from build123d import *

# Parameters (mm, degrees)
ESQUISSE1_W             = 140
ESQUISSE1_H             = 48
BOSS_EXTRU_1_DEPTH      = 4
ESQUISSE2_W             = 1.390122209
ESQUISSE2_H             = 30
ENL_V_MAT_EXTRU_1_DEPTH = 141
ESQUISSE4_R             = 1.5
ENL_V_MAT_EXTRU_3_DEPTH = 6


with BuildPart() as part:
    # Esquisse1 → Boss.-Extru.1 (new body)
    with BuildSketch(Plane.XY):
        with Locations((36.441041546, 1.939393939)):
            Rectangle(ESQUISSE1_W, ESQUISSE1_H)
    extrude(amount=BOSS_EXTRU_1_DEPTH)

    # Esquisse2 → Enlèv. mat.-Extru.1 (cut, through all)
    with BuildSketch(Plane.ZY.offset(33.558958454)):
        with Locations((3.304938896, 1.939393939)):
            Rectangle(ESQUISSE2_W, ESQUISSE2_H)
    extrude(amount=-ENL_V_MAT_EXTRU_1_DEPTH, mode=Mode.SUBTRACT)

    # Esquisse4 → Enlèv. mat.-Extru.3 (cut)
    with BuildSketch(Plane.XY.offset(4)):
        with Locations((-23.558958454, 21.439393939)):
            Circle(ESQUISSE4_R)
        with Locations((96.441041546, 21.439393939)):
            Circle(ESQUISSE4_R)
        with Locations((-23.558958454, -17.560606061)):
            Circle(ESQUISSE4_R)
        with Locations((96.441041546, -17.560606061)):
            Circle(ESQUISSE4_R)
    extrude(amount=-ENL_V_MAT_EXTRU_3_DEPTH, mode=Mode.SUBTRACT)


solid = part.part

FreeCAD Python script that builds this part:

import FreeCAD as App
import Part
import Sketcher
Q = App.Units.Quantity


def add_polygon(sketch, points):
    """Adds a closed chain of lines whose ends are joined by coincident constraints."""
    first, n = sketch.GeometryCount, len(points)
    for a, b in zip(points, points[1:] + points[:1]):
        sketch.addGeometry(Part.LineSegment(App.Vector(*a, 0), App.Vector(*b, 0)), False)
    for i in range(n):
        sketch.addConstraint(Sketcher.Constraint("Coincident", first + i, 2, first + (i + 1) % n, 1))

doc = App.newDocument("Part")
body = doc.addObject("PartDesign::Body", "Body")

# Sketch on XY plane
sketch1 = body.newObject("Sketcher::SketchObject", "Sketch")
sketch1.AttachmentSupport = (doc.getObject("XY_Plane"), [""])
sketch1.MapMode = "FlatFace"
add_polygon(sketch1, [(-33.558958, 25.939394), (-33.558958, -22.060606), (106.441042, -22.060606), (106.441042, 25.939394)])  # lines 0-3
sketch1.addConstraint(Sketcher.Constraint("Vertical", 0))
sketch1.addConstraint(Sketcher.Constraint("Horizontal", 1))
sketch1.addConstraint(Sketcher.Constraint("Vertical", 2))
sketch1.addConstraint(Sketcher.Constraint("Horizontal", 3))
sketch1.addConstraint(Sketcher.Constraint("DistanceX", 1, 1, 1, 2, Q("140 mm")))
sketch1.addConstraint(Sketcher.Constraint("DistanceY", 0, 2, 0, 1, Q("48 mm")))
sketch1.addConstraint(Sketcher.Constraint("DistanceX", 0, 2, -1, 1, Q("33.558958 mm")))
sketch1.addConstraint(Sketcher.Constraint("DistanceY", 0, 2, -1, 1, Q("22.060606 mm")))
pad1 = body.newObject("PartDesign::Pad", "Pad")
pad1.Profile = sketch1
pad1.Length = 4

# Sketch on YZ plane
sketch2 = body.newObject("Sketcher::SketchObject", "Sketch001")
sketch2.AttachmentSupport = (doc.getObject("YZ_Plane"), [""])
sketch2.MapMode = "FlatFace"
sketch2.AttachmentOffset = App.Placement(App.Vector(0, 0, -33.558958), App.Rotation())
add_polygon(sketch2, [(16.939394, 2.609878), (-13.060606, 2.609878), (-13.060606, 4), (16.939394, 4)])  # lines 0-3
sketch2.addConstraint(Sketcher.Constraint("Horizontal", 0))
sketch2.addConstraint(Sketcher.Constraint("Vertical", 1))
sketch2.addConstraint(Sketcher.Constraint("Horizontal", 2))
sketch2.addConstraint(Sketcher.Constraint("Vertical", 3))
sketch2.addConstraint(Sketcher.Constraint("DistanceX", 0, 2, 0, 1, Q("30 mm")))
sketch2.addConstraint(Sketcher.Constraint("DistanceY", -1, 1, 1, 2, Q("4 mm")))
sketch2.addConstraint(Sketcher.Constraint("DistanceY", 1, 1, 1, 2, Q("1.390122 mm")))
sketch2.addConstraint(Sketcher.Constraint("DistanceX", 0, 2, -1, 1, Q("13.060606 mm")))
pocket1 = body.newObject("PartDesign::Pocket", "Pocket")
pocket1.Profile = sketch2
pocket1.Type = "ThroughAll"
pocket1.Reversed = True

# Sketch on XY plane
sketch3 = body.newObject("Sketcher::SketchObject", "Sketch002")
sketch3.AttachmentSupport = (doc.getObject("XY_Plane"), [""])
sketch3.MapMode = "FlatFace"
sketch3.AttachmentOffset = App.Placement(App.Vector(0, 0, 4), App.Rotation())
sketch3.addGeometry(Part.Circle(App.Vector(-23.558958, 21.439394, 0), App.Vector(0, 0, 1), 1.5), False)
sketch3.addGeometry(Part.Circle(App.Vector(96.441042, 21.439394, 0), App.Vector(0, 0, 1), 1.5), False)
sketch3.addGeometry(Part.Circle(App.Vector(-23.558958, -17.560606, 0), App.Vector(0, 0, 1), 1.5), False)
sketch3.addGeometry(Part.Circle(App.Vector(96.441042, -17.560606, 0), App.Vector(0, 0, 1), 1.5), False)
sketch3.addConstraint(Sketcher.Constraint("Equal", 0, 1))
sketch3.addConstraint(Sketcher.Constraint("Equal", 1, 2))
sketch3.addConstraint(Sketcher.Constraint("Equal", 2, 3))
sketch3.addConstraint(Sketcher.Constraint("Horizontal", 0, 3, 1, 3))
sketch3.addConstraint(Sketcher.Constraint("Horizontal", 2, 3, 3, 3))
sketch3.addConstraint(Sketcher.Constraint("Vertical", 0, 3, 2, 3))
sketch3.addConstraint(Sketcher.Constraint("Vertical", 1, 3, 3, 3))
sketch3.addConstraint(Sketcher.Constraint("Diameter", 0, Q("3 mm")))
sketch3.addConstraint(Sketcher.Constraint("DistanceX", 0, 3, 1, 3, Q("120 mm")))
sketch3.addConstraint(Sketcher.Constraint("DistanceY", 2, 3, 0, 3, Q("39 mm")))
sketch3.addConstraint(Sketcher.Constraint("DistanceX", 0, 3, -1, 1, Q("23.558958 mm")))
sketch3.addConstraint(Sketcher.Constraint("DistanceY", -1, 1, 0, 3, Q("21.439394 mm")))
pocket2 = body.newObject("PartDesign::Pocket", "Pocket001")
pocket2.Profile = sketch3
pocket2.Length = 6

doc.recompute()
